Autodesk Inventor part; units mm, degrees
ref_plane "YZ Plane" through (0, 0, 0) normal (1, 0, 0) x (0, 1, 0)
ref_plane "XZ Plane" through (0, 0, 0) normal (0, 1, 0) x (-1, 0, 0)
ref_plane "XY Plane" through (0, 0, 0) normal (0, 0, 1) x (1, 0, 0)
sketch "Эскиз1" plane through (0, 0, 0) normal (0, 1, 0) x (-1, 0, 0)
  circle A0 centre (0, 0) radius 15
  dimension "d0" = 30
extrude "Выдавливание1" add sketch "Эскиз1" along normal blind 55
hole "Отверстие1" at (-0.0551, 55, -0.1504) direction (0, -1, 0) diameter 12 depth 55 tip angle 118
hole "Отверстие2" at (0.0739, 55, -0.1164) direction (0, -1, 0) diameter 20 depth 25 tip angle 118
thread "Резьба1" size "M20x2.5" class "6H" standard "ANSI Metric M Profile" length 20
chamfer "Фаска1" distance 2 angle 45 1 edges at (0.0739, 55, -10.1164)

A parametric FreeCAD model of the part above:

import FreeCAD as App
import Part
import Sketcher
Q = App.Units.Quantity


def edges_at(feature, points):
    """Names of the edges that pass closest to the given points."""
    edges = feature.Shape.Edges
    near = lambda p: min(range(len(edges)), key=lambda i: edges[i].distToShape(Part.Vertex(*p))[0])
    return sorted({f"Edge{near(p) + 1}" for p in points})

doc = App.newDocument("Part")
params = doc.addObject("Spreadsheet::Sheet", "Params")
for row, (alias, value) in enumerate([
    ("sketch1_diameter", "30 mm"),
    ("pad1_length", "55 mm"),
    ("sketch2_diameter", "12 mm"),
    ("hole_diameter", "12 mm"),
    ("hole_depth", "55 mm"),
    ("sketch3_diameter", "20 mm"),
    ("hole2_diameter", "20 mm"),
    ("hole2_depth", "25 mm"),
    ("chamfer_size", "2 mm"),
], start=1):
    params.set(f"A{row}", alias)
    params.set(f"B{row}", "=" + value)
    params.setAlias(f"B{row}", alias)

body = doc.addObject("PartDesign::Body", "Body")

# Sketch on XZ plane
sketch1 = doc.addObject("Sketcher::SketchObject", "Sketch")
body.addObject(sketch1)
sketch1.AttachmentSupport = (doc.XZ_Plane, [""])
sketch1.MapMode = "FlatFace"
sketch1.addGeometry(Part.Circle(App.Vector(0, 0, 0), App.Vector(0, 0, 1), 15), False)
sketch1.addConstraint(Sketcher.Constraint("Coincident", 0, 3, -1, 1))
sketch1.addConstraint(Sketcher.Constraint("Diameter", 0, Q("30 mm")))
sketch1.setExpression("Constraints[1]", "Params.sketch1_diameter")
pad1 = doc.addObject("PartDesign::Pad", "Pad")
body.addObject(pad1)
pad1.Profile = sketch1
pad1.setExpression("Length", "Params.pad1_length")
pad1.Reversed = True

# Sketch on XZ plane
sketch2 = doc.addObject("Sketcher::SketchObject", "Sketch001")
body.addObject(sketch2)
sketch2.AttachmentSupport = (doc.XZ_Plane, [""])
sketch2.MapMode = "FlatFace"
sketch2.AttachmentOffset = App.Placement(App.Vector(0, 0, -55), App.Rotation())
sketch2.addGeometry(Part.Circle(App.Vector(-0.0551, -0.1504, 0), App.Vector(0, 0, 1), 6), False)
sketch2.addConstraint(Sketcher.Constraint("Diameter", 0, Q("12 mm")))
sketch2.addConstraint(Sketcher.Constraint("DistanceX", 0, 3, -1, 1, Q("0.055 mm")))
sketch2.addConstraint(Sketcher.Constraint("DistanceY", 0, 3, -1, 1, Q("0.1504 mm")))
sketch2.setExpression("Constraints[0]", "Params.sketch2_diameter")
doc.recompute()
hole = doc.addObject("PartDesign::Hole", "Hole")
body.addObject(hole)
hole.Profile = sketch2
hole.ThreadType = "None"
hole.setExpression("Diameter", "Params.hole_diameter")
hole.DepthType = "Dimension"
hole.setExpression("Depth", "Params.hole_depth")
hole.DrillPoint = "Angled"
hole.DrillPointAngle = 118
hole.Reversed = True

# Sketch on XZ plane
sketch3 = doc.addObject("Sketcher::SketchObject", "Sketch002")
body.addObject(sketch3)
sketch3.AttachmentSupport = (doc.XZ_Plane, [""])
sketch3.MapMode = "FlatFace"
sketch3.AttachmentOffset = App.Placement(App.Vector(0, 0, -55), App.Rotation())
sketch3.addGeometry(Part.Circle(App.Vector(0.0739, -0.1164, 0), App.Vector(0, 0, 1), 10), False)
sketch3.addConstraint(Sketcher.Constraint("Diameter", 0, Q("20 mm")))
sketch3.addConstraint(Sketcher.Constraint("DistanceX", -1, 1, 0, 3, Q("0.074 mm")))
sketch3.addConstraint(Sketcher.Constraint("DistanceY", 0, 3, -1, 1, Q("0.1164 mm")))
sketch3.setExpression("Constraints[0]", "Params.sketch3_diameter")
doc.recompute()
hole2 = doc.addObject("PartDesign::Hole", "Hole001")
body.addObject(hole2)
hole2.Profile = sketch3
hole2.ThreadType = "None"
hole2.setExpression("Diameter", "Params.hole2_diameter")
hole2.DepthType = "Dimension"
hole2.setExpression("Depth", "Params.hole2_depth")
hole2.DrillPoint = "Angled"
hole2.DrillPointAngle = 118
hole2.Reversed = True
doc.recompute()

chamfer = doc.addObject("PartDesign::Chamfer", "Chamfer")
body.addObject(chamfer)
chamfer.Base = (hole2, edges_at(hole2, [(0.074, 55, -10.116)]))
chamfer.setExpression("Size", "Params.chamfer_size")

doc.recompute()
